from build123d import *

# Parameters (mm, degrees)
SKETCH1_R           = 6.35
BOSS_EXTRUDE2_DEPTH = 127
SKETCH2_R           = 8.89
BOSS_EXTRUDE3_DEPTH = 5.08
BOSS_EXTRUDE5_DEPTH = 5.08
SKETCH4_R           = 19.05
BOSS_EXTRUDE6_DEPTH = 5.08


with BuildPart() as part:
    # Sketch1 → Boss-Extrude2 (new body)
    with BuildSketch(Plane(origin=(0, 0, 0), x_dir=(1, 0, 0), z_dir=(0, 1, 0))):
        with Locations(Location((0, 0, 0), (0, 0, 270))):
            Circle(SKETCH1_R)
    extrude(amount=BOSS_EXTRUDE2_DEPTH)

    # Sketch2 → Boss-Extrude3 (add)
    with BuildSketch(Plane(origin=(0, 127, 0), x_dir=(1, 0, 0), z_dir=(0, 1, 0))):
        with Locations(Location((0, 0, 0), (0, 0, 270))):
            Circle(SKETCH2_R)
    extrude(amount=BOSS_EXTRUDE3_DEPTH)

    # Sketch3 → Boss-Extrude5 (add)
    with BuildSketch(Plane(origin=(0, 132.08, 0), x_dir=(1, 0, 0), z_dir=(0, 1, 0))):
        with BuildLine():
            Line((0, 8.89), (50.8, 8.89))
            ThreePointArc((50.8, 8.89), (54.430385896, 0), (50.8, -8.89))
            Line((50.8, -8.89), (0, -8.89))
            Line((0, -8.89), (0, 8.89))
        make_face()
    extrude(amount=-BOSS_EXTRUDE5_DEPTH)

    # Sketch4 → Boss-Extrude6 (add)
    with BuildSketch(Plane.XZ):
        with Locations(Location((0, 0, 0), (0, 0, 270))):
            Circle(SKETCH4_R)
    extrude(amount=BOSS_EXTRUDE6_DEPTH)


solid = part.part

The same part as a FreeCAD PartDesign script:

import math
import FreeCAD as App
import Part
import Sketcher
from FreeCAD import Vector
Q = App.Units.Quantity

doc = App.newDocument("Part")
body = doc.addObject("PartDesign::Body", "Body")

# Sketch on XZ plane
sketch1 = body.newObject("Sketcher::SketchObject", "Sketch")
sketch1.AttachmentSupport = (doc.getObject("XZ_Plane"), [""])
sketch1.MapMode = "FlatFace"
sketch1.addGeometry(Part.Circle(Vector(0, 0, 0), Vector(0, 0, 1), 6), False)
sketch1.addConstraint([
    Sketcher.Constraint("Coincident", 0, 3, -1, 1),
    Sketcher.Constraint("Diameter", 0, Q("0.5 in")),
])
pad1 = body.newObject("PartDesign::Pad", "Pad")
pad1.Profile = sketch1
pad1.Length = Q("5 in")
pad1.Reversed = True

# Sketch on XZ plane
sketch2 = body.newObject("Sketcher::SketchObject", "Sketch001")
sketch2.AttachmentSupport = (doc.getObject("XZ_Plane"), [""])
sketch2.MapMode = "FlatFace"
sketch2.AttachmentOffset = App.Placement(Vector(0, 0, -5 * 25.4), App.Rotation())
sketch2.addGeometry(Part.Circle(Vector(0, 0, 0), Vector(0, 0, 1), 9), False)
sketch2.addConstraint([
    Sketcher.Constraint("Coincident", 0, 3, -1, 1),
    Sketcher.Constraint("Diameter", 0, Q("0.7 in")),
])
pad2 = body.newObject("PartDesign::Pad", "Pad001")
pad2.Profile = sketch2
pad2.Length = Q("0.2 in")
pad2.Reversed = True

# Sketch on XZ plane
sketch3 = body.newObject("Sketcher::SketchObject", "Sketch002")
sketch3.AttachmentSupport = (doc.getObject("XZ_Plane"), [""])
sketch3.MapMode = "FlatFace"
sketch3.AttachmentOffset = App.Placement(Vector(0, 0, -5.2 * 25.4), App.Rotation())
sketch3.addGeometry([
    Part.LineSegment(Vector(51, -9, 0), Vector(0, -9, 0)),
    Part.LineSegment(Vector(0, -9, 0), Vector(0, 9, 0)),
    Part.LineSegment(Vector(0, 9, 0), Vector(51, 9, 0)),
    Part.ArcOfCircle(Part.Circle(Vector(42, 0, 0), Vector(0, 0, 1), 13), math.radians(-44), math.radians(44)),
], False)
sketch3.addConstraint([
    Sketcher.Constraint("Coincident", 0, 2, 1, 1),
    Sketcher.Constraint("Coincident", 1, 2, 2, 1),
    Sketcher.Constraint("Coincident", 2, 2, 3, 2),
    Sketcher.Constraint("Coincident", 3, 1, 0, 1),
    Sketcher.Constraint("Horizontal", 0),
    Sketcher.Constraint("Vertical", 1),
    Sketcher.Constraint("Horizontal", 2),
    Sketcher.Constraint("Symmetric", 0, 2, 1, 2, -1, 1),
    Sketcher.Constraint("PointOnObject", 3, 3, -1),
    Sketcher.Constraint("Radius", 3, Q("0.5 in")),
    Sketcher.Constraint("DistanceX", 0, 2, 0, 1, Q("2 in")),
    Sketcher.Constraint("DistanceY", 1, 1, 1, 2, Q("0.7 in")),
])
pad3 = body.newObject("PartDesign::Pad", "Pad002")
pad3.Profile = sketch3
pad3.Length = Q("0.2 in")

# Sketch on XZ plane
sketch4 = body.newObject("Sketcher::SketchObject", "Sketch003")
sketch4.AttachmentSupport = (doc.getObject("XZ_Plane"), [""])
sketch4.MapMode = "FlatFace"
sketch4.addGeometry(Part.Circle(Vector(0, 0, 0), Vector(0, 0, 1), 19), False)
sketch4.addConstraint([
    Sketcher.Constraint("Coincident", 0, 3, -1, 1),
    Sketcher.Constraint("Diameter", 0, Q("1.5 in")),
])
pad4 = body.newObject("PartDesign::Pad", "Pad003")
pad4.Profile = sketch4
pad4.Length = Q("0.2 in")

doc.recompute()
